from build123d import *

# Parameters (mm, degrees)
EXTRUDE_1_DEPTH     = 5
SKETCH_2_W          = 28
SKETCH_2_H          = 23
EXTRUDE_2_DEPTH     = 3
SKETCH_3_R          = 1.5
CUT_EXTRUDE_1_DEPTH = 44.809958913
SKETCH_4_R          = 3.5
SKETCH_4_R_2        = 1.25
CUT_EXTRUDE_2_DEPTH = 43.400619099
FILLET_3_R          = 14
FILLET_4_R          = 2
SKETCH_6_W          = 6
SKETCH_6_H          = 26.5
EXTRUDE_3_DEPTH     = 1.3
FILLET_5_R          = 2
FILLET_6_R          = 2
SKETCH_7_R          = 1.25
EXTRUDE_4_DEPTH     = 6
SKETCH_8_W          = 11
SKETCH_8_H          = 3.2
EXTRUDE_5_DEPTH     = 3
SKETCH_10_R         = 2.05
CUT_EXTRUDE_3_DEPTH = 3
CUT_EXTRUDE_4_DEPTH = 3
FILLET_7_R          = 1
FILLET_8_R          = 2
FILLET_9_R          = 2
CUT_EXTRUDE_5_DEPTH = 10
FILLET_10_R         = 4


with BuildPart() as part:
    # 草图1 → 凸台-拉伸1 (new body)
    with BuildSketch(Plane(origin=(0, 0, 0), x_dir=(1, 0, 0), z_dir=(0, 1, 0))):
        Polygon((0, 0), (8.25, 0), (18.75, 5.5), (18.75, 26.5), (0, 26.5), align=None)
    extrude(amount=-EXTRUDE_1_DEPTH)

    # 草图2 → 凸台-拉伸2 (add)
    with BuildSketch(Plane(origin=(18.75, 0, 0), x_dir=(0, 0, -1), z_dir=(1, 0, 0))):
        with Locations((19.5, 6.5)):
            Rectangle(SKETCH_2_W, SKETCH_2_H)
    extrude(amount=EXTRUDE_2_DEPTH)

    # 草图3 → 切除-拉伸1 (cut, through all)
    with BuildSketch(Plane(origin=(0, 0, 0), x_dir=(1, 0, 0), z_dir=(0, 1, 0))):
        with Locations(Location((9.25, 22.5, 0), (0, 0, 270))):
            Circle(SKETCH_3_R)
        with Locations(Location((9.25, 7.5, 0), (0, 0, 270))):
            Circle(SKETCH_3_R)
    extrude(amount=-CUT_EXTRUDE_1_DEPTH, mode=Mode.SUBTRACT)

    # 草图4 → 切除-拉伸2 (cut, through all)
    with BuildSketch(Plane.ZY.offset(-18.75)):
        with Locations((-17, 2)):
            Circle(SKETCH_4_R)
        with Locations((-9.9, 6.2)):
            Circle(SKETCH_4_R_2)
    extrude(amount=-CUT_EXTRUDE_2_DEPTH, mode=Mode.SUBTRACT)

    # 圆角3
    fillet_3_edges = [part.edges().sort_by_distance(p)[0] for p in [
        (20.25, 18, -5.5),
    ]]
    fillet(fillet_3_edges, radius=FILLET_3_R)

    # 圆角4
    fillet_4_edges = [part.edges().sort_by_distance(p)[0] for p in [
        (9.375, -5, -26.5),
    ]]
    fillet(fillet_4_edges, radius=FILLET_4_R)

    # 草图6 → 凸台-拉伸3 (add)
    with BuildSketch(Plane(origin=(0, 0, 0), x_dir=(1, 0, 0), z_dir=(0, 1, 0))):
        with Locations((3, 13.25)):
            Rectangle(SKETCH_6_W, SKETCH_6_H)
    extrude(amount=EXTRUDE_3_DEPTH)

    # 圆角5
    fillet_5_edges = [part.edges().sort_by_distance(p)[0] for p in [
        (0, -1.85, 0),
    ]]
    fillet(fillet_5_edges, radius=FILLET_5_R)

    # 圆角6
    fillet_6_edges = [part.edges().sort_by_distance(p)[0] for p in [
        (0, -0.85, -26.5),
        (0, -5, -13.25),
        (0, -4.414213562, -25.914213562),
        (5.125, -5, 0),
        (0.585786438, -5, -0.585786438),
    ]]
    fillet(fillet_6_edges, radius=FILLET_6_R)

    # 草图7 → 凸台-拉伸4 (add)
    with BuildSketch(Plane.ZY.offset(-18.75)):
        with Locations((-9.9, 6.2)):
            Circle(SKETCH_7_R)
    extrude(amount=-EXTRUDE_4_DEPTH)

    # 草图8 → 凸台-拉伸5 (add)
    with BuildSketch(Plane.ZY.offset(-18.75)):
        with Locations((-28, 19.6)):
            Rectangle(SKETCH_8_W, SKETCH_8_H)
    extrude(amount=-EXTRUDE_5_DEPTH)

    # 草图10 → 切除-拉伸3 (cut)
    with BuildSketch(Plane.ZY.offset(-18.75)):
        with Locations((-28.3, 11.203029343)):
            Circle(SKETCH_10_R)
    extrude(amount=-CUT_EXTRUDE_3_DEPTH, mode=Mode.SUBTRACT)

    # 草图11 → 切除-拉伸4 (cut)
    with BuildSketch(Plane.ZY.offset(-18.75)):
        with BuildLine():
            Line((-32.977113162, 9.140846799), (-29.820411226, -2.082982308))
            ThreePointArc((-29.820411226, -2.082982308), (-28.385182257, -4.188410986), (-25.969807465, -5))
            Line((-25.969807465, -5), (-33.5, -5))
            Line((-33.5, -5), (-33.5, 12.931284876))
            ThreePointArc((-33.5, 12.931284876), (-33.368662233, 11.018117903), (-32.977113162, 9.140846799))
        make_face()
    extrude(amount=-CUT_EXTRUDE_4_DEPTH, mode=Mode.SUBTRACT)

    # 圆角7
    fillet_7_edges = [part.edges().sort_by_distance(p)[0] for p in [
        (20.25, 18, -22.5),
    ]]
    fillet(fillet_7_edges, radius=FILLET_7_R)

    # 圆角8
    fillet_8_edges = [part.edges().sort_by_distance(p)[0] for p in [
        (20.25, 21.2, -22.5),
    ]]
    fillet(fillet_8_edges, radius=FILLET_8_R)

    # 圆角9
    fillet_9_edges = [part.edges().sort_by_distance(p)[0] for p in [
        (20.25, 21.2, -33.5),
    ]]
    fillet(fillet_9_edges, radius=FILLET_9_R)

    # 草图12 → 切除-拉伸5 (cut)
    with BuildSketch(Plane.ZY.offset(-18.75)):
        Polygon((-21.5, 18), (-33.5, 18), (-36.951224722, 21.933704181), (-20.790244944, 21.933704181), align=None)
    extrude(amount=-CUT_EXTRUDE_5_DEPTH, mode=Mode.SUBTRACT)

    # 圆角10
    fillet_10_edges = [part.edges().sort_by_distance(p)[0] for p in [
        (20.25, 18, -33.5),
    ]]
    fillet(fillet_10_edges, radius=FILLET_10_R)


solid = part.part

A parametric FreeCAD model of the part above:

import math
import FreeCAD as App
import Part
import Sketcher
Q = App.Units.Quantity


def edges_at(feature, points):
    """Names of the edges that pass closest to the given points."""
    edges = feature.Shape.Edges
    near = lambda p: min(range(len(edges)), key=lambda i: edges[i].distToShape(Part.Vertex(*p))[0])
    return sorted({f"Edge{near(p) + 1}" for p in points})

doc = App.newDocument("Part")
body = doc.addObject("PartDesign::Body", "Body")

# Sketch on XZ plane
sketch1 = body.newObject("Sketcher::SketchObject", "Sketch")
sketch1.AttachmentSupport = (doc.getObject("XZ_Plane"), [""])
sketch1.MapMode = "FlatFace"
sketch1.addGeometry(Part.LineSegment(App.Vector(0, 0, 0), App.Vector(8, 0, 0)), False)
sketch1.addGeometry(Part.LineSegment(App.Vector(8, 0, 0), App.Vector(19, -6, 0)), False)
sketch1.addGeometry(Part.LineSegment(App.Vector(19, -6, 0), App.Vector(19, -26, 0)), False)
sketch1.addGeometry(Part.LineSegment(App.Vector(19, -26, 0), App.Vector(0, -26, 0)), False)
sketch1.addGeometry(Part.LineSegment(App.Vector(0, -26, 0), App.Vector(0, 0, 0)), False)
sketch1.addConstraint(Sketcher.Constraint("Coincident", 0, 2, 1, 1))
sketch1.addConstraint(Sketcher.Constraint("Coincident", 1, 2, 2, 1))
sketch1.addConstraint(Sketcher.Constraint("Coincident", 2, 2, 3, 1))
sketch1.addConstraint(Sketcher.Constraint("Coincident", 3, 2, 4, 1))
sketch1.addConstraint(Sketcher.Constraint("Coincident", 4, 2, 0, 1))
sketch1.addConstraint(Sketcher.Constraint("Horizontal", 0))
sketch1.addConstraint(Sketcher.Constraint("Vertical", 2))
sketch1.addConstraint(Sketcher.Constraint("Horizontal", 3))
sketch1.addConstraint(Sketcher.Constraint("Vertical", 4))
sketch1.addConstraint(Sketcher.Constraint("Coincident", 4, 2, -1, 1))
sketch1.addConstraint(Sketcher.Constraint("DistanceY", 2, 2, 2, 1, Q("21 mm")))
sketch1.addConstraint(Sketcher.Constraint("DistanceY", 4, 1, 4, 2, Q("26.5 mm")))
sketch1.addConstraint(Sketcher.Constraint("DistanceX", 0, 1, 0, 2, Q("8.25 mm")))
sketch1.addConstraint(Sketcher.Constraint("DistanceX", 3, 2, 3, 1, Q("18.75 mm")))
pad1 = body.newObject("PartDesign::Pad", "Pad")
pad1.Profile = sketch1
pad1.Length = 5

# Sketch on YZ plane
sketch2 = body.newObject("Sketcher::SketchObject", "Sketch001")
sketch2.AttachmentSupport = (doc.getObject("YZ_Plane"), [""])
sketch2.MapMode = "FlatFace"
sketch2.AttachmentOffset = App.Placement(App.Vector(0, 0, 18.75), App.Rotation())
sketch2.addGeometry(Part.LineSegment(App.Vector(18, -6, 0), App.Vector(-5, -6, 0)), False)
sketch2.addGeometry(Part.LineSegment(App.Vector(-5, -6, 0), App.Vector(-5, -34, 0)), False)
sketch2.addGeometry(Part.LineSegment(App.Vector(-5, -34, 0), App.Vector(18, -34, 0)), False)
sketch2.addGeometry(Part.LineSegment(App.Vector(18, -34, 0), App.Vector(18, -6, 0)), False)
sketch2.addConstraint(Sketcher.Constraint("Coincident", 0, 2, 1, 1))
sketch2.addConstraint(Sketcher.Constraint("Coincident", 1, 2, 2, 1))
sketch2.addConstraint(Sketcher.Constraint("Coincident", 2, 2, 3, 1))
sketch2.addConstraint(Sketcher.Constraint("Coincident", 3, 2, 0, 1))
sketch2.addConstraint(Sketcher.Constraint("Horizontal", 0))
sketch2.addConstraint(Sketcher.Constraint("Vertical", 1))
sketch2.addConstraint(Sketcher.Constraint("Horizontal", 2))
sketch2.addConstraint(Sketcher.Constraint("Vertical", 3))
sketch2.addConstraint(Sketcher.Constraint("DistanceX", 0, 2, 0, 1, Q("23 mm")))
sketch2.addConstraint(Sketcher.Constraint("DistanceY", 1, 2, 1, 1, Q("28 mm")))
sketch2.addConstraint(Sketcher.Constraint("DistanceX", 0, 2, -1, 1, Q("5 mm")))
sketch2.addConstraint(Sketcher.Constraint("DistanceY", 0, 2, -1, 1, Q("5.5 mm")))
pad2 = body.newObject("PartDesign::Pad", "Pad001")
pad2.Profile = sketch2
pad2.Length = 3

# Sketch on XZ plane
sketch3 = body.newObject("Sketcher::SketchObject", "Sketch002")
sketch3.AttachmentSupport = (doc.getObject("XZ_Plane"), [""])
sketch3.MapMode = "FlatFace"
sketch3.addGeometry(Part.Circle(App.Vector(9.2, -22.5, 0), App.Vector(0, 0, 1), 1.5), False)
sketch3.addGeometry(Part.Circle(App.Vector(9.2, -7.5, 0), App.Vector(0, 0, 1), 1.5), False)
sketch3.addConstraint(Sketcher.Constraint("Equal", 0, 1))
sketch3.addConstraint(Sketcher.Constraint("Vertical", 0, 3, 1, 3))
sketch3.addConstraint(Sketcher.Constraint("Diameter", 0, Q("3 mm")))
sketch3.addConstraint(Sketcher.Constraint("DistanceY", 0, 3, 1, 3, Q("15 mm")))
sketch3.addConstraint(Sketcher.Constraint("DistanceY", 0, 3, -1, 1, Q("22.5 mm")))
sketch3.addConstraint(Sketcher.Constraint("DistanceX", -1, 1, 0, 3, Q("9.25 mm")))
pocket1 = body.newObject("PartDesign::Pocket", "Pocket")
pocket1.Profile = sketch3
pocket1.Type = "ThroughAll"
pocket1.Reversed = True

# Sketch on YZ plane
sketch4 = body.newObject("Sketcher::SketchObject", "Sketch003")
sketch4.AttachmentSupport = (doc.getObject("YZ_Plane"), [""])
sketch4.MapMode = "FlatFace"
sketch4.AttachmentOffset = App.Placement(App.Vector(0, 0, 18.75), App.Rotation())
sketch4.addGeometry(Part.Circle(App.Vector(2, -17, 0), App.Vector(0, 0, 1), 3.5), False)
sketch4.addGeometry(Part.Circle(App.Vector(6.2, -9.9, 0), App.Vector(0, 0, 1), 1.2), False)
sketch4.addConstraint(Sketcher.Constraint("Diameter", 0, Q("7 mm")))
sketch4.addConstraint(Sketcher.Constraint("Diameter", 1, Q("2.5 mm")))
sketch4.addConstraint(Sketcher.Constraint("DistanceX", -1, 1, 0, 3, Q("2 mm")))
sketch4.addConstraint(Sketcher.Constraint("DistanceY", 0, 3, -1, 1, Q("17 mm")))
sketch4.addConstraint(Sketcher.Constraint("DistanceX", -1, 1, 1, 3, Q("6.2 mm")))
sketch4.addConstraint(Sketcher.Constraint("DistanceY", 1, 3, -1, 1, Q("9.9 mm")))
pocket2 = body.newObject("PartDesign::Pocket", "Pocket001")
pocket2.Profile = sketch4
pocket2.Type = "ThroughAll"
pocket2.Reversed = True
doc.recompute()

fillet = body.newObject("PartDesign::Fillet", "Fillet")
fillet.Base = (pocket2, edges_at(pocket2, [(20.25, 18, -5.5)]))
fillet.Radius = 14
doc.recompute()

fillet2 = body.newObject("PartDesign::Fillet", "Fillet001")
fillet2.Base = (fillet, edges_at(fillet, [(9.375, -5, -26.5)]))
fillet2.Radius = 2

# Sketch on XZ plane
sketch5 = body.newObject("Sketcher::SketchObject", "Sketch004")
sketch5.AttachmentSupport = (doc.getObject("XZ_Plane"), [""])
sketch5.MapMode = "FlatFace"
sketch5.addGeometry(Part.LineSegment(App.Vector(0, -26, 0), App.Vector(0, 0, 0)), False)
sketch5.addGeometry(Part.LineSegment(App.Vector(0, 0, 0), App.Vector(6, 0, 0)), False)
sketch5.addGeometry(Part.LineSegment(App.Vector(6, 0, 0), App.Vector(6, -26, 0)), False)
sketch5.addGeometry(Part.LineSegment(App.Vector(6, -26, 0), App.Vector(0, -26, 0)), False)
sketch5.addConstraint(Sketcher.Constraint("Coincident", 0, 2, 1, 1))
sketch5.addConstraint(Sketcher.Constraint("Coincident", 1, 2, 2, 1))
sketch5.addConstraint(Sketcher.Constraint("Coincident", 2, 2, 3, 1))
sketch5.addConstraint(Sketcher.Constraint("Coincident", 3, 2, 0, 1))
sketch5.addConstraint(Sketcher.Constraint("Vertical", 0))
sketch5.addConstraint(Sketcher.Constraint("Horizontal", 1))
sketch5.addConstraint(Sketcher.Constraint("Vertical", 2))
sketch5.addConstraint(Sketcher.Constraint("Horizontal", 3))
sketch5.addConstraint(Sketcher.Constraint("Coincident", 0, 2, -1, 1))
sketch5.addConstraint(Sketcher.Constraint("DistanceX", 1, 1, 1, 2, Q("6 mm")))
sketch5.addConstraint(Sketcher.Constraint("DistanceY", 0, 1, 0, 2, Q("26.5 mm")))
pad3 = body.newObject("PartDesign::Pad", "Pad002")
pad3.Profile = sketch5
pad3.Length = 1.3
pad3.Reversed = True
doc.recompute()

fillet3 = body.newObject("PartDesign::Fillet", "Fillet002")
fillet3.Base = (pad3, edges_at(pad3, [(0, -1.85, 0)]))
fillet3.Radius = 2
doc.recompute()

fillet4 = body.newObject("PartDesign::Fillet", "Fillet003")
fillet4.Base = (fillet3, edges_at(fillet3, [
    (0, -0.85, -26.5),
    (0, -5, -13.25),
    (0, -4.414, -25.914),
    (5.125, -5, 0),
    (0.586, -5, -0.586),
]))
fillet4.Radius = 2

# Sketch on YZ plane
sketch6 = body.newObject("Sketcher::SketchObject", "Sketch005")
sketch6.AttachmentSupport = (doc.getObject("YZ_Plane"), [""])
sketch6.MapMode = "FlatFace"
sketch6.AttachmentOffset = App.Placement(App.Vector(0, 0, 18.75), App.Rotation())
sketch6.addGeometry(Part.Circle(App.Vector(6.2, -9.9, 0), App.Vector(0, 0, 1), 1.2), False)
sketch6.addConstraint(Sketcher.Constraint("Diameter", 0, Q("2.5 mm")))
sketch6.addConstraint(Sketcher.Constraint("DistanceX", -1, 1, 0, 3, Q("6.2 mm")))
sketch6.addConstraint(Sketcher.Constraint("DistanceY", 0, 3, -1, 1, Q("9.9 mm")))
pad4 = body.newObject("PartDesign::Pad", "Pad003")
pad4.Profile = sketch6
pad4.Length = 6

# Sketch on YZ plane
sketch7 = body.newObject("Sketcher::SketchObject", "Sketch006")
sketch7.AttachmentSupport = (doc.getObject("YZ_Plane"), [""])
sketch7.MapMode = "FlatFace"
sketch7.AttachmentOffset = App.Placement(App.Vector(0, 0, 18.75), App.Rotation())
sketch7.addGeometry(Part.LineSegment(App.Vector(21.2, -33.5, 0), App.Vector(18, -33.5, 0)), False)
sketch7.addGeometry(Part.LineSegment(App.Vector(18, -33.5, 0), App.Vector(18, -22.5, 0)), False)
sketch7.addGeometry(Part.LineSegment(App.Vector(18, -22.5, 0), App.Vector(21.2, -22.5, 0)), False)
sketch7.addGeometry(Part.LineSegment(App.Vector(21.2, -22.5, 0), App.Vector(21.2, -33.5, 0)), False)
sketch7.addConstraint(Sketcher.Constraint("Coincident", 0, 2, 1, 1))
sketch7.addConstraint(Sketcher.Constraint("Coincident", 1, 2, 2, 1))
sketch7.addConstraint(Sketcher.Constraint("Coincident", 2, 2, 3, 1))
sketch7.addConstraint(Sketcher.Constraint("Coincident", 3, 2, 0, 1))
sketch7.addConstraint(Sketcher.Constraint("Horizontal", 0))
sketch7.addConstraint(Sketcher.Constraint("Vertical", 1))
sketch7.addConstraint(Sketcher.Constraint("Horizontal", 2))
sketch7.addConstraint(Sketcher.Constraint("Vertical", 3))
sketch7.addConstraint(Sketcher.Constraint("DistanceY", 1, 1, 1, 2, Q("11 mm")))
sketch7.addConstraint(Sketcher.Constraint("DistanceX", 0, 2, 0, 1, Q("3.2 mm")))
sketch7.addConstraint(Sketcher.Constraint("DistanceX", -1, 1, 0, 2, Q("18 mm")))
sketch7.addConstraint(Sketcher.Constraint("DistanceY", 0, 2, -1, 1, Q("33.5 mm")))
pad5 = body.newObject("PartDesign::Pad", "Pad004")
pad5.Profile = sketch7
pad5.Length = 3

# Sketch on YZ plane
sketch8 = body.newObject("Sketcher::SketchObject", "Sketch007")
sketch8.AttachmentSupport = (doc.getObject("YZ_Plane"), [""])
sketch8.MapMode = "FlatFace"
sketch8.AttachmentOffset = App.Placement(App.Vector(0, 0, 18.75), App.Rotation())
sketch8.addGeometry(Part.Circle(App.Vector(11.2, -28.3, 0), App.Vector(0, 0, 1), 2), False)
sketch8.addConstraint(Sketcher.Constraint("Diameter", 0, Q("4.1 mm")))
sketch8.addConstraint(Sketcher.Constraint("DistanceY", 0, 3, -1, 1, Q("28.3 mm")))
sketch8.addConstraint(Sketcher.Constraint("DistanceX", -1, 1, 0, 3, Q("11.203029 mm")))
pocket3 = body.newObject("PartDesign::Pocket", "Pocket002")
pocket3.Profile = sketch8
pocket3.Length = 3
pocket3.Reversed = True

# Sketch on YZ plane
sketch9 = body.newObject("Sketcher::SketchObject", "Sketch008")
sketch9.AttachmentSupport = (doc.getObject("YZ_Plane"), [""])
sketch9.MapMode = "FlatFace"
sketch9.AttachmentOffset = App.Placement(App.Vector(0, 0, 18.75), App.Rotation())
sketch9.addGeometry(Part.LineSegment(App.Vector(-2.1, -29.8, 0), App.Vector(9.1, -33, 0)), False)
sketch9.addGeometry(Part.ArcOfCircle(Part.Circle(App.Vector(12.9, -19.5, 0), App.Vector(0, 0, 1), 14), math.radians(-105.71), math.radians(-90)), False)
sketch9.addGeometry(Part.LineSegment(App.Vector(12.9, -33.5, 0), App.Vector(-5, -33.5, 0)), False)
sketch9.addGeometry(Part.LineSegment(App.Vector(-5, -33.5, 0), App.Vector(-5, -26, 0)), False)
sketch9.addGeometry(Part.ArcOfCircle(Part.Circle(App.Vector(-1, -26, 0), App.Vector(0, 0, 1), 4), math.radians(180), math.radians(254)), False)
sketch9.addConstraint(Sketcher.Constraint("Tangent", 0, 2, 1, 1))
sketch9.addConstraint(Sketcher.Constraint("Tangent", 1, 2, 2, 1))
sketch9.addConstraint(Sketcher.Constraint("Coincident", 2, 2, 3, 1))
sketch9.addConstraint(Sketcher.Constraint("Tangent", 3, 2, 4, 1))
sketch9.addConstraint(Sketcher.Constraint("Tangent", 4, 2, 0, 1))
sketch9.addConstraint(Sketcher.Constraint("Horizontal", 2))
sketch9.addConstraint(Sketcher.Constraint("Vertical", 3))
sketch9.addConstraint(Sketcher.Constraint("Radius", 1, Q("14 mm")))
sketch9.addConstraint(Sketcher.Constraint("Radius", 4, Q("4 mm")))
sketch9.addConstraint(Sketcher.Constraint("DistanceX", 4, 3, -1, 1, Q("1 mm")))
sketch9.addConstraint(Sketcher.Constraint("DistanceY", 1, 3, -1, 1, Q("19.5 mm")))
sketch9.addConstraint(Sketcher.Constraint("DistanceY", 0, 2, 4, 2, Q("3.156702 mm")))
sketch9.addConstraint(Sketcher.Constraint("DistanceX", 2, 2, 2, 1, Q("17.931285 mm")))
pocket4 = body.newObject("PartDesign::Pocket", "Pocket003")
pocket4.Profile = sketch9
pocket4.Length = 3
pocket4.Reversed = True
doc.recompute()

fillet5 = body.newObject("PartDesign::Fillet", "Fillet004")
fillet5.Base = (pocket4, edges_at(pocket4, [(20.25, 18, -22.5)]))
fillet5.Radius = 1
doc.recompute()

fillet6 = body.newObject("PartDesign::Fillet", "Fillet005")
fillet6.Base = (fillet5, edges_at(fillet5, [(20.25, 21.2, -22.5)]))
fillet6.Radius = 2
doc.recompute()

fillet7 = body.newObject("PartDesign::Fillet", "Fillet006")
fillet7.Base = (fillet6, edges_at(fillet6, [(20.25, 21.2, -33.5)]))
fillet7.Radius = 2

# Sketch on YZ plane
sketch10 = body.newObject("Sketcher::SketchObject", "Sketch009")
sketch10.AttachmentSupport = (doc.getObject("YZ_Plane"), [""])
sketch10.MapMode = "FlatFace"
sketch10.AttachmentOffset = App.Placement(App.Vector(0, 0, 18.75), App.Rotation())
sketch10.addGeometry(Part.LineSegment(App.Vector(18, -33.5, 0), App.Vector(18, -21.5, 0)), False)
sketch10.addGeometry(Part.LineSegment(App.Vector(18, -21.5, 0), App.Vector(21.9, -20.8, 0)), False)
sketch10.addGeometry(Part.LineSegment(App.Vector(21.9, -20.8, 0), App.Vector(21.9, -37, 0)), False)
sketch10.addGeometry(Part.LineSegment(App.Vector(21.9, -37, 0), App.Vector(18, -33.5, 0)), False)
sketch10.addConstraint(Sketcher.Constraint("Coincident", 0, 2, 1, 1))
sketch10.addConstraint(Sketcher.Constraint("Coincident", 1, 2, 2, 1))
sketch10.addConstraint(Sketcher.Constraint("Coincident", 2, 2, 3, 1))
sketch10.addConstraint(Sketcher.Constraint("Coincident", 3, 2, 0, 1))
sketch10.addConstraint(Sketcher.Constraint("Vertical", 0))
sketch10.addConstraint(Sketcher.Constraint("Vertical", 2))
sketch10.addConstraint(Sketcher.Constraint("DistanceY", 0, 1, 0, 2, Q("12 mm")))
sketch10.addConstraint(Sketcher.Constraint("DistanceX", -1, 1, 0, 2, Q("18 mm")))
sketch10.addConstraint(Sketcher.Constraint("DistanceY", 0, 2, -1, 1, Q("21.5 mm")))
sketch10.addConstraint(Sketcher.Constraint("DistanceY", 2, 2, 2, 1, Q("16.16098 mm")))
sketch10.addConstraint(Sketcher.Constraint("Distance", 1, Q("3.997222 mm")))
sketch10.addConstraint(Sketcher.Constraint("Distance", 3, Q("5.233066 mm")))
pocket5 = body.newObject("PartDesign::Pocket", "Pocket004")
pocket5.Profile = sketch10
pocket5.Length = 10
pocket5.Reversed = True
doc.recompute()

fillet8 = body.newObject("PartDesign::Fillet", "Fillet007")
fillet8.Base = (pocket5, edges_at(pocket5, [(20.25, 18, -33.5)]))
fillet8.Radius = 4

doc.recompute()
